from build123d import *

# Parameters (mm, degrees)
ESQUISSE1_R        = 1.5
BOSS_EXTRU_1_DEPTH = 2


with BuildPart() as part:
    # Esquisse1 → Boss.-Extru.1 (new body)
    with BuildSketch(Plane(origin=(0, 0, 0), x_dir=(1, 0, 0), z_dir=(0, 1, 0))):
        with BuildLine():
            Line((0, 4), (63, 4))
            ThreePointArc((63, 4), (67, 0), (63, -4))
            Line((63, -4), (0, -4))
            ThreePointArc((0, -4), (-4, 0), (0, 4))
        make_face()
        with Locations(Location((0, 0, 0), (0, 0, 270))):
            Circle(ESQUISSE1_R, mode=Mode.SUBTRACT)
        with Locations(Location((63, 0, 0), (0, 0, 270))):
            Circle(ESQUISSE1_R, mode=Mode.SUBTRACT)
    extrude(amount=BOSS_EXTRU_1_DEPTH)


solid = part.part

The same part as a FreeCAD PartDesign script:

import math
import FreeCAD as App
import Part
import Sketcher

V = App.Vector
Q = App.Units.Quantity

doc = App.newDocument("Part")
body = doc.addObject("PartDesign::Body", "Body")

sketch1 = doc.addObject("Sketcher::SketchObject", "Sketch")
body.addObject(sketch1)
sketch1.AttachmentSupport = (doc.XZ_Plane, [""])
sketch1.MapMode = "FlatFace"
sketch1.addGeometry([
    Part.LineSegment(V(63, -4, 0), V(0, -4, 0)),
    Part.ArcOfCircle(Part.Circle(V(0, 0, 0), V(0, 0, 1), 4), math.radians(90), math.radians(270)),
    Part.LineSegment(V(0, 4, 0), V(63, 4, 0)),
    Part.ArcOfCircle(Part.Circle(V(63, 0, 0), V(0, 0, 1), 4), math.radians(-90), math.radians(90)),
    Part.Circle(V(63, 0, 0), V(0, 0, 1), 1.5),
    Part.Circle(V(0, 0, 0), V(0, 0, 1), 1.5),
], False)
sketch1.addConstraint([
    Sketcher.Constraint("Tangent", 0, 2, 1, 2),
    Sketcher.Constraint("Tangent", 1, 1, 2, 1),
    Sketcher.Constraint("Tangent", 2, 2, 3, 2),
    Sketcher.Constraint("Tangent", 3, 1, 0, 1),
    Sketcher.Constraint("Horizontal", 0),
    Sketcher.Constraint("Horizontal", 2),
    Sketcher.Constraint("Coincident", 1, 3, -1, 1),
    Sketcher.Constraint("Coincident", 5, 3, -1, 1),
    Sketcher.Constraint("Coincident", 4, 3, 3, 3),
    Sketcher.Constraint("Equal", 4, 5),
    Sketcher.Constraint("Diameter", 4, Q("3 mm")),
    Sketcher.Constraint("Radius", 1, Q("4 mm")),
    Sketcher.Constraint("DistanceX", 0, 2, 0, 1, Q("63 mm")),
])
pad1 = doc.addObject("PartDesign::Pad", "Pad")
body.addObject(pad1)
pad1.Profile = sketch1
pad1.Length = 2
pad1.Reversed = True

doc.recompute()
